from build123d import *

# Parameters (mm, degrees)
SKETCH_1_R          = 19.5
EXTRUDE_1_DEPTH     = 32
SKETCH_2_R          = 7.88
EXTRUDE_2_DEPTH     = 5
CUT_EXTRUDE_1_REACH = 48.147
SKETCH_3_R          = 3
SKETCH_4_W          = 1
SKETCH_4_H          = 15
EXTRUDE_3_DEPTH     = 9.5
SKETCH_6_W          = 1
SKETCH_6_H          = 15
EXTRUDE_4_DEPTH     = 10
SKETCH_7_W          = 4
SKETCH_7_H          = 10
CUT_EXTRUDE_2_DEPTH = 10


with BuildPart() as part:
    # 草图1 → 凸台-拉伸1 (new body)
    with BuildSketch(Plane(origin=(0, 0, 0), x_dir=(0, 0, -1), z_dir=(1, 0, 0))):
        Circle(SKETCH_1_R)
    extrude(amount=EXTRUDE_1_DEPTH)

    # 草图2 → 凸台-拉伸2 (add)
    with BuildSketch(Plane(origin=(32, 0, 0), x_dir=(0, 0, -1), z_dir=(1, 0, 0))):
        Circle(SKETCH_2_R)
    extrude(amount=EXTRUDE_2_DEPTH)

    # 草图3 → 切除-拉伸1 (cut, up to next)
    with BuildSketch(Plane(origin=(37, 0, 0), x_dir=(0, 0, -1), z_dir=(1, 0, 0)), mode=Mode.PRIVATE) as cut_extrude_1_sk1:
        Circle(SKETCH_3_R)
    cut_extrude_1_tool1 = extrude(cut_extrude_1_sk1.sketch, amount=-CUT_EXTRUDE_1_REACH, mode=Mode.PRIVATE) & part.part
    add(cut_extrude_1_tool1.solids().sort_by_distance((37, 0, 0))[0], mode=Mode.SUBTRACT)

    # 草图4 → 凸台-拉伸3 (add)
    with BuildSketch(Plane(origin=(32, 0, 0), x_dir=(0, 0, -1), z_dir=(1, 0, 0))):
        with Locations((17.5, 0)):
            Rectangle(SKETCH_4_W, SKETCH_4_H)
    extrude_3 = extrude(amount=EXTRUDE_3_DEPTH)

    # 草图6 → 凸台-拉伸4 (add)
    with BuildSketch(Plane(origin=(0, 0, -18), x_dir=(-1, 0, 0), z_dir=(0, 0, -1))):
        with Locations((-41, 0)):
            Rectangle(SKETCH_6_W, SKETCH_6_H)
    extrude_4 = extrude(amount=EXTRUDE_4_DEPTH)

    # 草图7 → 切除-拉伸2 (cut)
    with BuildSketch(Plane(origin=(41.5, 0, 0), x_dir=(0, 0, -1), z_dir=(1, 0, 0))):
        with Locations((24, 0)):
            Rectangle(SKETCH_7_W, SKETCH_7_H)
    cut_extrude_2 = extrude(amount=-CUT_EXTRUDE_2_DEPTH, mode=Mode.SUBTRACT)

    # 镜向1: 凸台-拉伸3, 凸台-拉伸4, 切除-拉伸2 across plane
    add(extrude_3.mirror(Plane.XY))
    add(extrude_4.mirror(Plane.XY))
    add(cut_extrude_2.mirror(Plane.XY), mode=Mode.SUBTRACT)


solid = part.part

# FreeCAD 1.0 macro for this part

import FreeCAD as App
import Part
import Sketcher

V = App.Vector
Q = App.Units.Quantity


def add_polygon(sketch, points):
    """Adds a closed chain of lines whose ends are joined by coincident constraints."""
    first, n = sketch.GeometryCount, len(points)
    for a, b in zip(points, points[1:] + points[:1]):
        sketch.addGeometry(Part.LineSegment(App.Vector(*a, 0), App.Vector(*b, 0)), False)
    for i in range(n):
        sketch.addConstraint(Sketcher.Constraint("Coincident", first + i, 2, first + (i + 1) % n, 1))

doc = App.newDocument("Part")
params = doc.addObject("Spreadsheet::Sheet", "Params")
for row, (alias, value) in enumerate([
    ("sketch1_diameter", "39 mm"),
    ("pad1_length", "32 mm"),
    ("sketch2_diameter", "15.76 mm"),
    ("pad2_length", "5 mm"),
    ("sketch3_diameter", "6 mm"),
    ("sketch4_width", "15 mm"),
    ("sketch4_height", "1 mm"),
    ("pad3_length", "9.5 mm"),
    ("sketch5_width", "1 mm"),
    ("sketch5_height", "15 mm"),
    ("pad4_length", "10 mm"),
    ("sketch6_width", "10 mm"),
    ("sketch6_height", "4 mm"),
    ("pocket2_length", "10 mm"),
], start=1):
    params.set(f"A{row}", alias)
    params.set(f"B{row}", "=" + value)
    params.setAlias(f"B{row}", alias)

body = doc.addObject("PartDesign::Body", "Body")

# Sketch on YZ plane
sketch1 = body.newObject("Sketcher::SketchObject", "Sketch")
sketch1.AttachmentSupport = (doc.getObject("YZ_Plane"), [""])
sketch1.MapMode = "FlatFace"
sketch1.addGeometry(Part.Circle(V(0, 0, 0), V(0, 0, 1), 20), False)
sketch1.addConstraint(Sketcher.Constraint("Coincident", 0, 3, -1, 1))
sketch1.addConstraint(Sketcher.Constraint("Diameter", 0, Q("39 mm")))
sketch1.setExpression("Constraints[1]", "Params.sketch1_diameter")
pad1 = body.newObject("PartDesign::Pad", "Pad")
pad1.Profile = sketch1
pad1.setExpression("Length", "Params.pad1_length")

# Sketch on YZ plane
sketch2 = body.newObject("Sketcher::SketchObject", "Sketch001")
sketch2.AttachmentSupport = (doc.getObject("YZ_Plane"), [""])
sketch2.MapMode = "FlatFace"
sketch2.AttachmentOffset = App.Placement(V(0, 0, 32), App.Rotation())
sketch2.addGeometry(Part.Circle(V(0, 0, 0), V(0, 0, 1), 8), False)
sketch2.addConstraint(Sketcher.Constraint("Coincident", 0, 3, -1, 1))
sketch2.addConstraint(Sketcher.Constraint("Diameter", 0, Q("15.76 mm")))
sketch2.setExpression("Constraints[1]", "Params.sketch2_diameter")
pad2 = body.newObject("PartDesign::Pad", "Pad001")
pad2.Profile = sketch2
pad2.setExpression("Length", "Params.pad2_length")

# Sketch on YZ plane
sketch3 = body.newObject("Sketcher::SketchObject", "Sketch002")
sketch3.AttachmentSupport = (doc.getObject("YZ_Plane"), [""])
sketch3.MapMode = "FlatFace"
sketch3.AttachmentOffset = App.Placement(V(0, 0, 37), App.Rotation())
sketch3.addGeometry(Part.Circle(V(0, 0, 0), V(0, 0, 1), 3), False)
sketch3.addConstraint(Sketcher.Constraint("Coincident", 0, 3, -1, 1))
sketch3.addConstraint(Sketcher.Constraint("Diameter", 0, Q("6 mm")))
sketch3.setExpression("Constraints[1]", "Params.sketch3_diameter")
pocket1 = body.newObject("PartDesign::Pocket", "Pocket")
pocket1.Profile = sketch3
pocket1.Type = "UpToFirst"

# Sketch on YZ plane
sketch4 = body.newObject("Sketcher::SketchObject", "Sketch003")
sketch4.AttachmentSupport = (doc.getObject("YZ_Plane"), [""])
sketch4.MapMode = "FlatFace"
sketch4.AttachmentOffset = App.Placement(V(0, 0, 32), App.Rotation())
add_polygon(sketch4, [(7.5, -17), (-7.5, -17), (-7.5, -18), (7.5, -18)])  # lines 0-3
sketch4.addConstraint(Sketcher.Constraint("Horizontal", 0))
sketch4.addConstraint(Sketcher.Constraint("Vertical", 1))
sketch4.addConstraint(Sketcher.Constraint("Horizontal", 2))
sketch4.addConstraint(Sketcher.Constraint("Vertical", 3))
sketch4.addConstraint(Sketcher.Constraint("DistanceX", 0, 2, 0, 1, Q("15 mm")))
sketch4.addConstraint(Sketcher.Constraint("DistanceY", 1, 2, 1, 1, Q("1 mm")))
sketch4.addConstraint(Sketcher.Constraint("DistanceY", 0, 2, -1, 1, Q("17 mm")))
sketch4.addConstraint(Sketcher.Constraint("DistanceX", 0, 2, -1, 1, Q("7.5 mm")))
sketch4.setExpression("Constraints[8]", "Params.sketch4_width")
sketch4.setExpression("Constraints[9]", "Params.sketch4_height")
pad3 = body.newObject("PartDesign::Pad", "Pad002")
pad3.Profile = sketch4
pad3.setExpression("Length", "Params.pad3_length")

# Sketch on XY plane
sketch5 = body.newObject("Sketcher::SketchObject", "Sketch004")
sketch5.AttachmentSupport = (doc.getObject("XY_Plane"), [""])
sketch5.MapMode = "FlatFace"
sketch5.AttachmentOffset = App.Placement(V(0, 0, -18), App.Rotation())
add_polygon(sketch5, [(41.5, 7.5), (41.5, -7.5), (40.5, -7.5), (40.5, 7.5)])  # lines 0-3
sketch5.addConstraint(Sketcher.Constraint("Vertical", 0))
sketch5.addConstraint(Sketcher.Constraint("Horizontal", 1))
sketch5.addConstraint(Sketcher.Constraint("Vertical", 2))
sketch5.addConstraint(Sketcher.Constraint("Horizontal", 3))
sketch5.addConstraint(Sketcher.Constraint("DistanceX", 1, 2, 1, 1, Q("1 mm")))
sketch5.addConstraint(Sketcher.Constraint("DistanceY", 0, 2, 0, 1, Q("15 mm")))
sketch5.addConstraint(Sketcher.Constraint("DistanceX", -1, 1, 0, 2, Q("41.5 mm")))
sketch5.addConstraint(Sketcher.Constraint("DistanceY", 0, 2, -1, 1, Q("7.5 mm")))
sketch5.setExpression("Constraints[8]", "Params.sketch5_width")
sketch5.setExpression("Constraints[9]", "Params.sketch5_height")
pad4 = body.newObject("PartDesign::Pad", "Pad003")
pad4.Profile = sketch5
pad4.setExpression("Length", "Params.pad4_length")
pad4.Reversed = True

# Sketch on YZ plane
sketch6 = body.newObject("Sketcher::SketchObject", "Sketch005")
sketch6.AttachmentSupport = (doc.getObject("YZ_Plane"), [""])
sketch6.MapMode = "FlatFace"
sketch6.AttachmentOffset = App.Placement(V(0, 0, 41.5), App.Rotation())
add_polygon(sketch6, [(5, -22), (-5, -22), (-5, -26), (5, -26)])  # lines 0-3
sketch6.addConstraint(Sketcher.Constraint("Horizontal", 0))
sketch6.addConstraint(Sketcher.Constraint("Vertical", 1))
sketch6.addConstraint(Sketcher.Constraint("Horizontal", 2))
sketch6.addConstraint(Sketcher.Constraint("Vertical", 3))
sketch6.addConstraint(Sketcher.Constraint("DistanceX", 0, 2, 0, 1, Q("10 mm")))
sketch6.addConstraint(Sketcher.Constraint("DistanceY", 1, 2, 1, 1, Q("4 mm")))
sketch6.addConstraint(Sketcher.Constraint("DistanceX", 0, 2, -1, 1, Q("5 mm")))
sketch6.addConstraint(Sketcher.Constraint("DistanceY", 0, 2, -1, 1, Q("22 mm")))
sketch6.setExpression("Constraints[8]", "Params.sketch6_width")
sketch6.setExpression("Constraints[9]", "Params.sketch6_height")
pocket2 = body.newObject("PartDesign::Pocket", "Pocket001")
pocket2.Profile = sketch6
pocket2.setExpression("Length", "Params.pocket2_length")
doc.recompute()

mirrored = body.newObject("PartDesign::Mirrored", "Mirrored")
mirrored.Originals = [pad3, pad4, pocket2]
mirrored.MirrorPlane = (doc.getObject("XY_Plane"), [""])
body.Tip = mirrored

doc.recompute()
